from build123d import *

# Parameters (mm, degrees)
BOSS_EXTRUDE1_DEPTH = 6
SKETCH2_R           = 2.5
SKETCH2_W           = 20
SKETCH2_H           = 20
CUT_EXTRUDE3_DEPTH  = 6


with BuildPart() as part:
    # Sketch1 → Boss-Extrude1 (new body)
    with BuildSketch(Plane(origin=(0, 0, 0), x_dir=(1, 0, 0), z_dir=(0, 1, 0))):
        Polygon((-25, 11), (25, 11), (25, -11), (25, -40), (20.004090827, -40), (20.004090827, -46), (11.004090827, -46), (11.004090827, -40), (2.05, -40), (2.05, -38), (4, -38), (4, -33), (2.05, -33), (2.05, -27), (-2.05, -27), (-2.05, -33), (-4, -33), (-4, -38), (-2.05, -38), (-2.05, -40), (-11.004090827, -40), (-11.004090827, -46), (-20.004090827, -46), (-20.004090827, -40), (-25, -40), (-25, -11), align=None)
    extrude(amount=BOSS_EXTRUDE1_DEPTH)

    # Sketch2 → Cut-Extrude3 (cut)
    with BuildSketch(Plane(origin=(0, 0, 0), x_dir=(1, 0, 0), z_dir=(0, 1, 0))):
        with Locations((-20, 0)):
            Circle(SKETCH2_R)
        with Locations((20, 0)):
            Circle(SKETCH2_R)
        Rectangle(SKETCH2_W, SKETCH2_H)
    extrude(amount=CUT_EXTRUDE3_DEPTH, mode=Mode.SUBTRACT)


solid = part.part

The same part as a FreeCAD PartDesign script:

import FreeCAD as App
import Part
import Sketcher
Q = App.Units.Quantity


def add_polygon(sketch, points):
    """Adds a closed chain of lines whose ends are joined by coincident constraints."""
    first, n = sketch.GeometryCount, len(points)
    for a, b in zip(points, points[1:] + points[:1]):
        sketch.addGeometry(Part.LineSegment(App.Vector(*a, 0), App.Vector(*b, 0)), False)
    for i in range(n):
        sketch.addConstraint(Sketcher.Constraint("Coincident", first + i, 2, first + (i + 1) % n, 1))

doc = App.newDocument("Part")
body = doc.addObject("PartDesign::Body", "Body")

# Sketch on XZ plane
sketch1 = body.newObject("Sketcher::SketchObject", "Sketch")
sketch1.AttachmentSupport = (doc.getObject("XZ_Plane"), [""])
sketch1.MapMode = "FlatFace"
add_polygon(sketch1, [(25, -11), (-25, -11), (-25, 40), (-20.004091, 40), (-20.004091, 46), (-11.004091, 46), (-11.004091, 40), (-2.05, 40), (-2.05, 38), (-4, 38), (-4, 33), (-2.05, 33), (-2.05, 27), (2.05, 27), (2.05, 33), (4, 33), (4, 38), (2.05, 38), (2.05, 40), (11.004091, 40), (11.004091, 46), (20.004091, 46), (20.004091, 40), (25, 40)])  # lines 0-23
sketch1.addConstraint(Sketcher.Constraint("Horizontal", 0))
sketch1.addConstraint(Sketcher.Constraint("Vertical", 1))
sketch1.addConstraint(Sketcher.Constraint("Horizontal", 2))
sketch1.addConstraint(Sketcher.Constraint("Vertical", 3))
sketch1.addConstraint(Sketcher.Constraint("Horizontal", 4))
sketch1.addConstraint(Sketcher.Constraint("Vertical", 5))
sketch1.addConstraint(Sketcher.Constraint("Horizontal", 6))
sketch1.addConstraint(Sketcher.Constraint("Vertical", 7))
sketch1.addConstraint(Sketcher.Constraint("Horizontal", 8))
sketch1.addConstraint(Sketcher.Constraint("Vertical", 9))
sketch1.addConstraint(Sketcher.Constraint("Horizontal", 10))
sketch1.addConstraint(Sketcher.Constraint("Vertical", 11))
sketch1.addConstraint(Sketcher.Constraint("Horizontal", 12))
sketch1.addConstraint(Sketcher.Constraint("Vertical", 13))
sketch1.addConstraint(Sketcher.Constraint("Horizontal", 14))
sketch1.addConstraint(Sketcher.Constraint("Vertical", 15))
sketch1.addConstraint(Sketcher.Constraint("Horizontal", 16))
sketch1.addConstraint(Sketcher.Constraint("Vertical", 17))
sketch1.addConstraint(Sketcher.Constraint("Horizontal", 18))
sketch1.addConstraint(Sketcher.Constraint("Vertical", 19))
sketch1.addConstraint(Sketcher.Constraint("Horizontal", 20))
sketch1.addConstraint(Sketcher.Constraint("Vertical", 21))
sketch1.addConstraint(Sketcher.Constraint("Horizontal", 22))
sketch1.addConstraint(Sketcher.Constraint("Vertical", 23))
sketch1.addConstraint(Sketcher.Constraint("Symmetric", 10, 2, 13, 2, -2))
sketch1.addConstraint(Sketcher.Constraint("Symmetric", 8, 2, 15, 2, -2))
sketch1.addConstraint(Sketcher.Constraint("Symmetric", 6, 2, 17, 2, -2))
sketch1.addConstraint(Sketcher.Constraint("Symmetric", 4, 2, 19, 2, -2))
sketch1.addConstraint(Sketcher.Constraint("Symmetric", 2, 2, 21, 2, -2))
sketch1.addConstraint(Sketcher.Constraint("Horizontal", 2, 2, 5, 2))
sketch1.addConstraint(Sketcher.Constraint("Vertical", 7, 2, 10, 2))
sketch1.addConstraint(Sketcher.Constraint("Equal", 2, 22))
sketch1.addConstraint(Sketcher.Constraint("Equal", 5, 11))
sketch1.addConstraint(Sketcher.Constraint("DistanceX", 0, 2, 0, 1, Q("50 mm")))
sketch1.addConstraint(Sketcher.Constraint("DistanceX", 4, 1, 4, 2, Q("9 mm")))
sketch1.addConstraint(Sketcher.Constraint("DistanceY", 1, 1, 1, 2, Q("51 mm")))
sketch1.addConstraint(Sketcher.Constraint("DistanceY", 3, 1, 3, 2, Q("6 mm")))
sketch1.addConstraint(Sketcher.Constraint("DistanceY", 7, 2, 7, 1, Q("2 mm")))
sketch1.addConstraint(Sketcher.Constraint("DistanceY", 9, 2, 9, 1, Q("5 mm")))
sketch1.addConstraint(Sketcher.Constraint("DistanceX", 12, 1, 12, 2, Q("4.1 mm")))
sketch1.addConstraint(Sketcher.Constraint("DistanceY", 0, 2, -1, 1, Q("11 mm")))
sketch1.addConstraint(Sketcher.Constraint("DistanceX", 8, 2, -1, 1, Q("4 mm")))
sketch1.addConstraint(Sketcher.Constraint("DistanceX", 2, 1, 2, 2, Q("4.995909 mm")))
pad1 = body.newObject("PartDesign::Pad", "Pad")
pad1.Profile = sketch1
pad1.Length = 6
pad1.Reversed = True

# Sketch on XZ plane
sketch2 = body.newObject("Sketcher::SketchObject", "Sketch001")
sketch2.AttachmentSupport = (doc.getObject("XZ_Plane"), [""])
sketch2.MapMode = "FlatFace"
sketch2.addGeometry(Part.Circle(App.Vector(-20, 0, 0), App.Vector(0, 0, 1), 2.5), False)  # 0
sketch2.addGeometry(Part.Circle(App.Vector(20, 0, 0), App.Vector(0, 0, 1), 2.5), False)  # 1
add_polygon(sketch2, [(-10, -10), (-10, 10), (10, 10), (10, -10)])  # lines 2-5
sketch2.addConstraint(Sketcher.Constraint("Vertical", 2))
sketch2.addConstraint(Sketcher.Constraint("Horizontal", 3))
sketch2.addConstraint(Sketcher.Constraint("Vertical", 4))
sketch2.addConstraint(Sketcher.Constraint("Horizontal", 5))
sketch2.addConstraint(Sketcher.Constraint("Equal", 0, 1))
sketch2.addConstraint(Sketcher.Constraint("Symmetric", 0, 3, 1, 3, -1, 1))
sketch2.addConstraint(Sketcher.Constraint("Symmetric", 2, 2, 4, 2, -1, 1))
sketch2.addConstraint(Sketcher.Constraint("PointOnObject", 0, 3, -1))
sketch2.addConstraint(Sketcher.Constraint("Equal", 5, 2))
sketch2.addConstraint(Sketcher.Constraint("Diameter", 0, Q("5 mm")))
sketch2.addConstraint(Sketcher.Constraint("DistanceX", 3, 1, 3, 2, Q("20 mm")))
sketch2.addConstraint(Sketcher.Constraint("DistanceX", 0, 3, -1, 1, Q("20 mm")))
pocket1 = body.newObject("PartDesign::Pocket", "Pocket")
pocket1.Profile = sketch2
pocket1.Length = 6

doc.recompute()
